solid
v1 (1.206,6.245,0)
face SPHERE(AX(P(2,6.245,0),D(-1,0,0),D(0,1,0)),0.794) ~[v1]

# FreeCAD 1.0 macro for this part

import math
import FreeCAD as App
import Part
import Sketcher
from FreeCAD import Vector
Q = App.Units.Quantity

doc = App.newDocument("Part")
params = doc.addObject("Spreadsheet::Sheet", "Params")
for row, (alias, value) in enumerate([
    ("revolution_angle", "360 deg"),
], start=1):
    params.set(f"A{row}", alias)
    params.set(f"B{row}", "=" + value)
    params.setAlias(f"B{row}", alias)

body = doc.addObject("PartDesign::Body", "Body")

# Sketch on XY plane
sketch1 = doc.addObject("Sketcher::SketchObject", "Sketch")
body.addObject(sketch1)
sketch1.AttachmentSupport = (doc.XY_Plane, [""])
sketch1.MapMode = "FlatFace"
sketch1.addGeometry(Part.LineSegment(Vector(1.2, 6.2, 0), Vector(2.8, 6.2, 0)), False)
sketch1.addGeometry(Part.ArcOfCircle(Part.Circle(Vector(2, 6.2, 0), Vector(0, 0, 1), 0.8), math.radians(0), math.radians(180)), False)
sketch1.addGeometry(Part.LineSegment(Vector(1.2, 6.2, 0), Vector(2.8, 6.2, 0)), True)  # axis
sketch1.addConstraint(Sketcher.Constraint("Coincident", 0, 1, 1, 2))
sketch1.addConstraint(Sketcher.Constraint("Coincident", 1, 1, 0, 2))
sketch1.addConstraint(Sketcher.Constraint("Horizontal", 0))
sketch1.addConstraint(Sketcher.Constraint("Horizontal", 2))
sketch1.addConstraint(Sketcher.Constraint("Coincident", 2, 1, 0, 1))
sketch1.addConstraint(Sketcher.Constraint("Horizontal", 1, 3, 0, 1))
sketch1.addConstraint(Sketcher.Constraint("Equal", 0, 2))
sketch1.addConstraint(Sketcher.Constraint("DistanceX", -1, 1, 1, 3, Q("2 mm")))
sketch1.addConstraint(Sketcher.Constraint("Radius", 1, Q("0.794 mm")))
sketch1.addConstraint(Sketcher.Constraint("DistanceY", -1, 1, 1, 3, Q("6.245 mm")))
revolution = doc.addObject("PartDesign::Revolution", "Revolution")
body.addObject(revolution)
revolution.Profile = sketch1
revolution.ReferenceAxis = (sketch1, ["Axis0"])
revolution.setExpression("Angle", "Params.revolution_angle")

doc.recompute()
